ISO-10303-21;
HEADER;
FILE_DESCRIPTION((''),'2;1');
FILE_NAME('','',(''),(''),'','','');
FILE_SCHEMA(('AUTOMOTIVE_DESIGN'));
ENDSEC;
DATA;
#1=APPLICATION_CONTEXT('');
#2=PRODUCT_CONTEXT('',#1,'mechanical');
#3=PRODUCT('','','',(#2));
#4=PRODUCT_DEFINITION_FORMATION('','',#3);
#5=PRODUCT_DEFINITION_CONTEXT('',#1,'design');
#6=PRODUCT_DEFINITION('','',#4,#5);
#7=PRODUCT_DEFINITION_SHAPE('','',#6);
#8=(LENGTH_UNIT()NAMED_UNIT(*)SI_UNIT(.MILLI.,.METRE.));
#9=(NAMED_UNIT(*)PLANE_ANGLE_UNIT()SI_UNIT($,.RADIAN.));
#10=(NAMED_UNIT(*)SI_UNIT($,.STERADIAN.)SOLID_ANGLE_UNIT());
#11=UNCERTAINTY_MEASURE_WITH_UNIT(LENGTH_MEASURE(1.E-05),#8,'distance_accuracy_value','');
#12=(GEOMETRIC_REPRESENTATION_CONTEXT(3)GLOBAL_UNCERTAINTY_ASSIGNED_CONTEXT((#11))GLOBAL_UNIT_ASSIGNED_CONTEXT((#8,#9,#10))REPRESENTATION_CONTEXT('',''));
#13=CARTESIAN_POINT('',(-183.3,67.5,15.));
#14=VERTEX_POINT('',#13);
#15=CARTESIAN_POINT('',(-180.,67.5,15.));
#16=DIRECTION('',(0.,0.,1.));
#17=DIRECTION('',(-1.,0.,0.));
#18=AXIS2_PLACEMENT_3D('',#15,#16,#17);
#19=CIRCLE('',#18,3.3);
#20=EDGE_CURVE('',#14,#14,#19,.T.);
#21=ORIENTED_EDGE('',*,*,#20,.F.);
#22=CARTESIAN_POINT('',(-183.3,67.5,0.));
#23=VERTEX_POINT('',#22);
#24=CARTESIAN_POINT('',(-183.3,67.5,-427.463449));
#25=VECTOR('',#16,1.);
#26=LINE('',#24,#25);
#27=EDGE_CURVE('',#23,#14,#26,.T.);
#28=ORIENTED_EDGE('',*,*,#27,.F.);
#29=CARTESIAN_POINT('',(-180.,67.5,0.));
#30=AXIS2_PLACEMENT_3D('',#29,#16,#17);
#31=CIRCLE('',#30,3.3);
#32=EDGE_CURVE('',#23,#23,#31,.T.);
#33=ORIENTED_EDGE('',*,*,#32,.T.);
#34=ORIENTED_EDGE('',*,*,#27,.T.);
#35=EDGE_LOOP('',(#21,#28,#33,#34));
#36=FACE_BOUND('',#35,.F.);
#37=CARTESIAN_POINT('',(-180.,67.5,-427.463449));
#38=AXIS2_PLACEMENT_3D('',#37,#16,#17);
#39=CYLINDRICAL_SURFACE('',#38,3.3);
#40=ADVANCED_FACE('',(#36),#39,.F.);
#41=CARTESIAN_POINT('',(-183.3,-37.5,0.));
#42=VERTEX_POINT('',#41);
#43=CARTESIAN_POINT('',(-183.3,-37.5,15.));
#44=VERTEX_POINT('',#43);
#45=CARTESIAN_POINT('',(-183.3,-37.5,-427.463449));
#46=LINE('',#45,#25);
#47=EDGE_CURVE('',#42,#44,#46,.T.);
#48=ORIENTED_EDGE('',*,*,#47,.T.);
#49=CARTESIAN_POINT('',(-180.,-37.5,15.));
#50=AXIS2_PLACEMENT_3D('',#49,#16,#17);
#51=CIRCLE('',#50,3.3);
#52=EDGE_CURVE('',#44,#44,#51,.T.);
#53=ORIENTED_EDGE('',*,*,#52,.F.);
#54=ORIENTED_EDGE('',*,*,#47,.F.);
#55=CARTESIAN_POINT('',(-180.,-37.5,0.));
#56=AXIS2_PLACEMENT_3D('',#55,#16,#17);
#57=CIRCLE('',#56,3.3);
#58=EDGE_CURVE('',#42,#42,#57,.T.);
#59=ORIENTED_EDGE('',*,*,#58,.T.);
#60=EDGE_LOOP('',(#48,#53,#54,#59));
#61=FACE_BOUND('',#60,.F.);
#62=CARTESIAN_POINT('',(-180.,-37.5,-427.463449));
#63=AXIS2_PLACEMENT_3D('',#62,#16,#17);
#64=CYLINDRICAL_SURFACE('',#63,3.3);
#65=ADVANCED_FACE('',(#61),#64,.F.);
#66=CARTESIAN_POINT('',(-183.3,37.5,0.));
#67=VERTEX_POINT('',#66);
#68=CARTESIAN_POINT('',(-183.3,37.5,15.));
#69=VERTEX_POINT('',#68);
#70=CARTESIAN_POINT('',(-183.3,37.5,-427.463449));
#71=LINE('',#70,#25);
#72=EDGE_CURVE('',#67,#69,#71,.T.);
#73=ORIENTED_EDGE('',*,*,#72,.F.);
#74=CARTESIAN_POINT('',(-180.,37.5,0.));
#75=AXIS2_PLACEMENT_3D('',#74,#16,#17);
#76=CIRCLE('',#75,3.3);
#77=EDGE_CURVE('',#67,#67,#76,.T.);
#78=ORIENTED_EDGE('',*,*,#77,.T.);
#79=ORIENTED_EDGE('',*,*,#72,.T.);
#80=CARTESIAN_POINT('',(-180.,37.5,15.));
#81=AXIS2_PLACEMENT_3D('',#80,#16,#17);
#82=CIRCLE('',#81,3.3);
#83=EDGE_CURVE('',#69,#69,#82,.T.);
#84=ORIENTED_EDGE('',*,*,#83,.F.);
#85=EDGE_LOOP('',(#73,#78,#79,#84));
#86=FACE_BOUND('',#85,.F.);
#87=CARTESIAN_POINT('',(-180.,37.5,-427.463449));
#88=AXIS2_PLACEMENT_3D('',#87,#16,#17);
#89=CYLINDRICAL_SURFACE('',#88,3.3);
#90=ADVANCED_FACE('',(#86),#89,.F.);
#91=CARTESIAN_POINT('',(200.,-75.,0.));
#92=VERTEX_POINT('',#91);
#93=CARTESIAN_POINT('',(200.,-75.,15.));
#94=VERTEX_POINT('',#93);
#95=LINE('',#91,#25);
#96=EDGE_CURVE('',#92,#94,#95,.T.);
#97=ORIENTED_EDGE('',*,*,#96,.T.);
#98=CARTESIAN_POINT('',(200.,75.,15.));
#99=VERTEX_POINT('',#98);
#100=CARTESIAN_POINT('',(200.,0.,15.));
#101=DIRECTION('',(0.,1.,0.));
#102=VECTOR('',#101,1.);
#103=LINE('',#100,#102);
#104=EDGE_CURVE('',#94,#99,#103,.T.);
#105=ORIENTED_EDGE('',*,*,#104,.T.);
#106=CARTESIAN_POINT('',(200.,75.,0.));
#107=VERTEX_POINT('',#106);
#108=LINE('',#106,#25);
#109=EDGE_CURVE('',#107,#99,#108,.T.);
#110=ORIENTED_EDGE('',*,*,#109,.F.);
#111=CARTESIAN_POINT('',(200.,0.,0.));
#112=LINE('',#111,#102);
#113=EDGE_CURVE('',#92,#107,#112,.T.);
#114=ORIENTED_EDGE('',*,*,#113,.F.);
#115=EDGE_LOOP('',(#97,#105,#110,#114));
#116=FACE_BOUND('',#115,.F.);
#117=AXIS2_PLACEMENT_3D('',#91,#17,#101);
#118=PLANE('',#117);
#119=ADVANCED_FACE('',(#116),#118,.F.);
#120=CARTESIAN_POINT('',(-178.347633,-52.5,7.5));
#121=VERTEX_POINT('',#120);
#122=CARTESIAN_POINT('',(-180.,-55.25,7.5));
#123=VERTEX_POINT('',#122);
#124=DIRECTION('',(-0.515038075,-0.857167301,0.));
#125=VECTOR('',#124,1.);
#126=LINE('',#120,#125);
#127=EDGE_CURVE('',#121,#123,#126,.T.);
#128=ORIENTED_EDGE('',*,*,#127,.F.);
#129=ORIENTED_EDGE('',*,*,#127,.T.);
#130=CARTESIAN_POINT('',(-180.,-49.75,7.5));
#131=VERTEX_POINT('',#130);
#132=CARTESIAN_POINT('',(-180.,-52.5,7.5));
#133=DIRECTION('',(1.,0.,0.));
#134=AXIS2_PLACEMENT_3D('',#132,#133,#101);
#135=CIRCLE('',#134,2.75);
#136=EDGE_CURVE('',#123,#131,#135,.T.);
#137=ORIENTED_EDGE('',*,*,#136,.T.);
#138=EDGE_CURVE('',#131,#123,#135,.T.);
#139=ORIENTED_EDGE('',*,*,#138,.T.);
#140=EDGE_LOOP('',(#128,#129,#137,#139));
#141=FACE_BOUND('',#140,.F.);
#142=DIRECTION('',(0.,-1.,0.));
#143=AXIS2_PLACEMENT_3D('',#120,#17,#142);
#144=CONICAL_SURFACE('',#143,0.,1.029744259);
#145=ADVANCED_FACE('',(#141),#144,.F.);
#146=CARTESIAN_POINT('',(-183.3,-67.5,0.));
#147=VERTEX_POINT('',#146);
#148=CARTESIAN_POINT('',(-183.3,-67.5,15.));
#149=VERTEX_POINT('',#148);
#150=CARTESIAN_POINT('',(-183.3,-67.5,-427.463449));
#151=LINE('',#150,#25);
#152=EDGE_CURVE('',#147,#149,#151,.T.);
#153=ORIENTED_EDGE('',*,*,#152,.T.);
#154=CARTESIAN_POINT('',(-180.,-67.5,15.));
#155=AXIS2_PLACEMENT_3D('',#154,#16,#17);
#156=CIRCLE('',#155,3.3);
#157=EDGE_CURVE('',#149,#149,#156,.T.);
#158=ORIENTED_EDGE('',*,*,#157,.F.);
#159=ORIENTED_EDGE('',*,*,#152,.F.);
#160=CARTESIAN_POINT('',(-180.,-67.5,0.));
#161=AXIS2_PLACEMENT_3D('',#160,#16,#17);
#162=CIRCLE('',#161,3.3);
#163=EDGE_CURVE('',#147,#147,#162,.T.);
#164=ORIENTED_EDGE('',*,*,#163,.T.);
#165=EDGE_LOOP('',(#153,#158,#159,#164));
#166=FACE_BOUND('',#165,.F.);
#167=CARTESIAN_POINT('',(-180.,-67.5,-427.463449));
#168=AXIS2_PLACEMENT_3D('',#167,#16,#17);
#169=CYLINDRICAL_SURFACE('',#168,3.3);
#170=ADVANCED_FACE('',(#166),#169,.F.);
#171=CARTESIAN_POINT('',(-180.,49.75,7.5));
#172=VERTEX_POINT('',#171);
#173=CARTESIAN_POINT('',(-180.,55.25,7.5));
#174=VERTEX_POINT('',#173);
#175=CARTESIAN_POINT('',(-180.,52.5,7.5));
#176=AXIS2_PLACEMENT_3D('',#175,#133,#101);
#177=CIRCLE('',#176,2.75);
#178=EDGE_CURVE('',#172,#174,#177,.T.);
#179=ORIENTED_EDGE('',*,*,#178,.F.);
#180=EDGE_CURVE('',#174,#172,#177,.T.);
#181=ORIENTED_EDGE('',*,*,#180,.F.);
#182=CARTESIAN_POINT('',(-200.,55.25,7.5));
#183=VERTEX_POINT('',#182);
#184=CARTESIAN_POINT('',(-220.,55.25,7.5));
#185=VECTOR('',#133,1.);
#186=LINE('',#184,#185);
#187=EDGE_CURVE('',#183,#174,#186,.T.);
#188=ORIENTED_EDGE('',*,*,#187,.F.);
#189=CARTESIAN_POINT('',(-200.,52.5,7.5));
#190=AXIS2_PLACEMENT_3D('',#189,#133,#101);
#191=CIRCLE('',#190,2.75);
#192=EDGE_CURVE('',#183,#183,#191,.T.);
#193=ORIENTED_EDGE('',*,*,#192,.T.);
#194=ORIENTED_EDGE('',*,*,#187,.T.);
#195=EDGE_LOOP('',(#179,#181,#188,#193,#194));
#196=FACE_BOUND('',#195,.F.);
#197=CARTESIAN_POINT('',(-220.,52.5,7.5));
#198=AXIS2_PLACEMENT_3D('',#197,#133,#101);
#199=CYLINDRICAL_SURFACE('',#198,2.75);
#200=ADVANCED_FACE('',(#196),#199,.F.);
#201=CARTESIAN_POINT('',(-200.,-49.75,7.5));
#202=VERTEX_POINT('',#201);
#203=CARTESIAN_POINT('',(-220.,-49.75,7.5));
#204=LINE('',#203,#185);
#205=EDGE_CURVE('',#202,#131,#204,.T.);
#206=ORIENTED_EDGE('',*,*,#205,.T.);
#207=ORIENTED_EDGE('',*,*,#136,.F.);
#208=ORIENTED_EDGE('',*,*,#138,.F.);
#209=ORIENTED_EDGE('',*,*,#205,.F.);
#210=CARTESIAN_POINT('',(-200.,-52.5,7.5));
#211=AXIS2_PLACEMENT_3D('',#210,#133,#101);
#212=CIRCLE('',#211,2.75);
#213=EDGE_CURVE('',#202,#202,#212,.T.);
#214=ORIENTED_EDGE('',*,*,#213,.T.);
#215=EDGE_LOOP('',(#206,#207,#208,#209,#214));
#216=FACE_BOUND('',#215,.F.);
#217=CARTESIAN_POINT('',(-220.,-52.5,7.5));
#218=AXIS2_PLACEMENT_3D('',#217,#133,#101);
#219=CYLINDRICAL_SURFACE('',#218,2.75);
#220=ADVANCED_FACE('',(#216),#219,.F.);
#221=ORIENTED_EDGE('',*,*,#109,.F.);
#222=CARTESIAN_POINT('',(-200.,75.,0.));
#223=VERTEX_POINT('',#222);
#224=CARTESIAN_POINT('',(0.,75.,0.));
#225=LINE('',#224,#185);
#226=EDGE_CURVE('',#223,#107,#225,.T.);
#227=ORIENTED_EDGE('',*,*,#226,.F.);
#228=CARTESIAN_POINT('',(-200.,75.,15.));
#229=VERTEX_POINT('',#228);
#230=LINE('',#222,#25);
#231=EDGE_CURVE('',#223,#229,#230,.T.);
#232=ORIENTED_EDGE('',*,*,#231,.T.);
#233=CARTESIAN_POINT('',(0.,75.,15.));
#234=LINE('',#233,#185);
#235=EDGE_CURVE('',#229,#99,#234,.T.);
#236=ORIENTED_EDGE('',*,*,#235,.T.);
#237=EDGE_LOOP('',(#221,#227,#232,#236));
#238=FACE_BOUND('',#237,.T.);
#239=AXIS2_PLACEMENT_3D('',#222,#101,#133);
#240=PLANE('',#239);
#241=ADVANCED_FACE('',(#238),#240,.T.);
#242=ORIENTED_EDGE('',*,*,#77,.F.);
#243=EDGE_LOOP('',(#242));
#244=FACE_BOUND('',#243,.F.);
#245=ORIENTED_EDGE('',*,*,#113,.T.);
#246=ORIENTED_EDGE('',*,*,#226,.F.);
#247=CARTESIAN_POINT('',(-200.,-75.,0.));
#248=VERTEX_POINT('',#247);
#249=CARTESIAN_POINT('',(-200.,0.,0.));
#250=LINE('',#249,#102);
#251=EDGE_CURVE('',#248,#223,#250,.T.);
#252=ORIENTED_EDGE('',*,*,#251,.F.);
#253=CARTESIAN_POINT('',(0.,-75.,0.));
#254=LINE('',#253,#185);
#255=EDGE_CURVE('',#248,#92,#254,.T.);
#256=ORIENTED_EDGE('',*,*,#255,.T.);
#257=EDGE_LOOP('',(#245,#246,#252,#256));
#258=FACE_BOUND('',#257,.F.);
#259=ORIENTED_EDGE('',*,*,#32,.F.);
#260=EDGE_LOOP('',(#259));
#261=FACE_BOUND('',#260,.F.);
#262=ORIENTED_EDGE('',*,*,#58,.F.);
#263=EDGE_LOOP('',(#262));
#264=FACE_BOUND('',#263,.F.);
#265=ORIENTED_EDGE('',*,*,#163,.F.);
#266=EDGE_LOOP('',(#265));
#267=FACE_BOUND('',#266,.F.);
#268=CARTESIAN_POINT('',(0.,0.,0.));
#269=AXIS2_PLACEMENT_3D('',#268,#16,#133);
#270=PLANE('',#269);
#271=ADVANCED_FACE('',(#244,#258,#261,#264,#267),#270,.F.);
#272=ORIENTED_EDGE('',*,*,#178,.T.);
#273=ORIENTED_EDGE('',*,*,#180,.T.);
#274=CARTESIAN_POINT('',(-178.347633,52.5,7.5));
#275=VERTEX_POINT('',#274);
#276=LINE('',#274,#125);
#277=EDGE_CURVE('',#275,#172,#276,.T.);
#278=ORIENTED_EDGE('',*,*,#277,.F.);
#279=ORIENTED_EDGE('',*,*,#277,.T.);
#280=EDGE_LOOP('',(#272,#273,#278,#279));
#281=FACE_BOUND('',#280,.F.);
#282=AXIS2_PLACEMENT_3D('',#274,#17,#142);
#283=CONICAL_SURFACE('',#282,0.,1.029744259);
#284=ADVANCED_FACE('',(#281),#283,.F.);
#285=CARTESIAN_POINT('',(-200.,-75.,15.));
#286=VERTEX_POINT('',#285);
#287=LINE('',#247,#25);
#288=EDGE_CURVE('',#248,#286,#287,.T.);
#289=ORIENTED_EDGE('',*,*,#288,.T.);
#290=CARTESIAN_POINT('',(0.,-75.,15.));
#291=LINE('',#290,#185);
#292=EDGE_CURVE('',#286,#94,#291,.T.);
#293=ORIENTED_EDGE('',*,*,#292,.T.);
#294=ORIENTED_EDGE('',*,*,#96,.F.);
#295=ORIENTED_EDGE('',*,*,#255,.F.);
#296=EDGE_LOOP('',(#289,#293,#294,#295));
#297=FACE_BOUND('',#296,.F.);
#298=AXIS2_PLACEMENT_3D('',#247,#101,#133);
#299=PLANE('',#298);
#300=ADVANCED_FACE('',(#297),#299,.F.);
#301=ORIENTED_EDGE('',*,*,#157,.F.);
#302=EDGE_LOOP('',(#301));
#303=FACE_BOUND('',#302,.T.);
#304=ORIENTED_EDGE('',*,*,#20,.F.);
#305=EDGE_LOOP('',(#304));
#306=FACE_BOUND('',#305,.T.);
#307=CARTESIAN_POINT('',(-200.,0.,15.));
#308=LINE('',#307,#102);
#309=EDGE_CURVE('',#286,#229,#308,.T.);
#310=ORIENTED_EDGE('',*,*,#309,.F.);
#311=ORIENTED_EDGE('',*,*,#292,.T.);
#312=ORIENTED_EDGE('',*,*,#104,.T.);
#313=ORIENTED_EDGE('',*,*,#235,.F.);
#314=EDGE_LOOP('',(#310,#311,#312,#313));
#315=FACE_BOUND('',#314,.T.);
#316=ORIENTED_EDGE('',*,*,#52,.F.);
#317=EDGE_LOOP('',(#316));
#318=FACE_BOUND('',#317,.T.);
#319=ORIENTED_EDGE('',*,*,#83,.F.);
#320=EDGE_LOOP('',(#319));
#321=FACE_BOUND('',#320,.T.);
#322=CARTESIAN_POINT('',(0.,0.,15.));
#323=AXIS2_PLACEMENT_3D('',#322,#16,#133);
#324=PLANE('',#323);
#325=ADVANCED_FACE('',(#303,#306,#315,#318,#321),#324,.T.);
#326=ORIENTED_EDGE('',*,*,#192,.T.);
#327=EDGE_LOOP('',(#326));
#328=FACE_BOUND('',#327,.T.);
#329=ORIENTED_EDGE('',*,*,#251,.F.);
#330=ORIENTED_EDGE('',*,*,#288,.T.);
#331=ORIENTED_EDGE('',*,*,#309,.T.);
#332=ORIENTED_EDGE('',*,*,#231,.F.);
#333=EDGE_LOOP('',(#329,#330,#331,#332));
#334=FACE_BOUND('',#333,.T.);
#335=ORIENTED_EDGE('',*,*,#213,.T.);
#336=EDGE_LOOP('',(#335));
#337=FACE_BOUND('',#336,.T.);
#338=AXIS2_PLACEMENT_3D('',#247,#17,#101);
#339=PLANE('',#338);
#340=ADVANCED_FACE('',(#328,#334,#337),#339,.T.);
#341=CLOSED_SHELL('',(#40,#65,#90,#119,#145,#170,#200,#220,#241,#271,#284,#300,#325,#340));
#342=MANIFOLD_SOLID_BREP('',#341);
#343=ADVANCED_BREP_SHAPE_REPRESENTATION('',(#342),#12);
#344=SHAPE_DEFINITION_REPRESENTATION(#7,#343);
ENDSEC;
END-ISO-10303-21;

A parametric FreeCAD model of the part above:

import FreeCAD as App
import Part
import Sketcher

V = App.Vector

doc = App.newDocument("Part")
body = doc.addObject("PartDesign::Body", "Body")

sketch1 = body.newObject("Sketcher::SketchObject", "Sketch")
sketch1.AttachmentSupport = (doc.getObject("XY_Plane"), [""])
sketch1.MapMode = "FlatFace"
sketch1.addGeometry([
    Part.LineSegment(V(-200, 75, 0), V(-200, -75, 0)),
    Part.LineSegment(V(-200, -75, 0), V(200, -75, 0)),
    Part.LineSegment(V(200, -75, 0), V(200, 75, 0)),
    Part.LineSegment(V(200, 75, 0), V(-200, 75, 0)),
], False)
sketch1.addConstraint([
    Sketcher.Constraint("Coincident", 0, 2, 1, 1),
    Sketcher.Constraint("Coincident", 1, 2, 2, 1),
    Sketcher.Constraint("Coincident", 2, 2, 3, 1),
    Sketcher.Constraint("Coincident", 3, 2, 0, 1),
    Sketcher.Constraint("Vertical", 0),
    Sketcher.Constraint("Horizontal", 1),
    Sketcher.Constraint("Vertical", 2),
    Sketcher.Constraint("Horizontal", 3),
    Sketcher.Constraint("Symmetric", 0, 2, 2, 2, -1, 1),
    Sketcher.Constraint("DistanceX", 1, 1, 1, 2, 400.0),
    Sketcher.Constraint("DistanceY", 0, 2, 0, 1, 150.0),
])
pad1 = body.newObject("PartDesign::Pad", "Pad")
pad1.Profile = sketch1
pad1.Length = 15

sketch2 = body.newObject("Sketcher::SketchObject", "Sketch001")
sketch2.AttachmentSupport = (doc.getObject("XY_Plane"), [""])
sketch2.MapMode = "FlatFace"
sketch2.addGeometry([
    Part.Circle(V(-180, 37.5, 0), V(0, 0, 1), 3.3),
    Part.Circle(V(-180, 67.5, 0), V(0, 0, 1), 3.3),
    Part.Circle(V(-180, -37.5, 0), V(0, 0, 1), 3.3),
    Part.Circle(V(-180, -67.5, 0), V(0, 0, 1), 3.3),
], False)
sketch2.addConstraint([
    Sketcher.Constraint("Equal", 0, 1),
    Sketcher.Constraint("Equal", 1, 2),
    Sketcher.Constraint("Equal", 2, 3),
    Sketcher.Constraint("Symmetric", 0, 3, 2, 3, -1),
    Sketcher.Constraint("Symmetric", 1, 3, 3, 3, -1),
    Sketcher.Constraint("Vertical", 0, 3, 1, 3),
    Sketcher.Constraint("Diameter", 0, 6.6),
    Sketcher.Constraint("DistanceX", 0, 3, -1, 1, 180.0),
    Sketcher.Constraint("DistanceY", 0, 3, 1, 3, 30.0),
    Sketcher.Constraint("DistanceY", 2, 3, 0, 3, 75.0),
])
doc.recompute()
hole = body.newObject("PartDesign::Hole", "Hole")
hole.Profile = sketch2
hole.ThreadType = "None"
hole.Diameter = 6.6
hole.DepthType = "ThroughAll"
hole.Reversed = True

sketch3 = body.newObject("Sketcher::SketchObject", "Sketch002")
sketch3.AttachmentSupport = (doc.getObject("YZ_Plane"), [""])
sketch3.MapMode = "FlatFace"
sketch3.AttachmentOffset = App.Placement(V(0, 0, -200), App.Rotation())
sketch3.addGeometry([
    Part.Circle(V(52.5, 7.5, 0), V(0, 0, 1), 2.8),
    Part.Circle(V(-52.5, 7.5, 0), V(0, 0, 1), 2.8),
], False)
sketch3.addConstraint([
    Sketcher.Constraint("Equal", 0, 1),
    Sketcher.Constraint("Symmetric", 0, 3, 1, 3, -2),
    Sketcher.Constraint("Diameter", 0, 5.5),
    Sketcher.Constraint("DistanceX", 1, 3, 0, 3, 105.0),
    Sketcher.Constraint("DistanceY", -1, 1, 0, 3, 7.5),
])
doc.recompute()
hole2 = body.newObject("PartDesign::Hole", "Hole001")
hole2.Profile = sketch3
hole2.ThreadType = "None"
hole2.Diameter = 5.5
hole2.DepthType = "Dimension"
hole2.Depth = 20
hole2.DrillPoint = "Angled"
hole2.DrillPointAngle = 118
hole2.Reversed = True

doc.recompute()
